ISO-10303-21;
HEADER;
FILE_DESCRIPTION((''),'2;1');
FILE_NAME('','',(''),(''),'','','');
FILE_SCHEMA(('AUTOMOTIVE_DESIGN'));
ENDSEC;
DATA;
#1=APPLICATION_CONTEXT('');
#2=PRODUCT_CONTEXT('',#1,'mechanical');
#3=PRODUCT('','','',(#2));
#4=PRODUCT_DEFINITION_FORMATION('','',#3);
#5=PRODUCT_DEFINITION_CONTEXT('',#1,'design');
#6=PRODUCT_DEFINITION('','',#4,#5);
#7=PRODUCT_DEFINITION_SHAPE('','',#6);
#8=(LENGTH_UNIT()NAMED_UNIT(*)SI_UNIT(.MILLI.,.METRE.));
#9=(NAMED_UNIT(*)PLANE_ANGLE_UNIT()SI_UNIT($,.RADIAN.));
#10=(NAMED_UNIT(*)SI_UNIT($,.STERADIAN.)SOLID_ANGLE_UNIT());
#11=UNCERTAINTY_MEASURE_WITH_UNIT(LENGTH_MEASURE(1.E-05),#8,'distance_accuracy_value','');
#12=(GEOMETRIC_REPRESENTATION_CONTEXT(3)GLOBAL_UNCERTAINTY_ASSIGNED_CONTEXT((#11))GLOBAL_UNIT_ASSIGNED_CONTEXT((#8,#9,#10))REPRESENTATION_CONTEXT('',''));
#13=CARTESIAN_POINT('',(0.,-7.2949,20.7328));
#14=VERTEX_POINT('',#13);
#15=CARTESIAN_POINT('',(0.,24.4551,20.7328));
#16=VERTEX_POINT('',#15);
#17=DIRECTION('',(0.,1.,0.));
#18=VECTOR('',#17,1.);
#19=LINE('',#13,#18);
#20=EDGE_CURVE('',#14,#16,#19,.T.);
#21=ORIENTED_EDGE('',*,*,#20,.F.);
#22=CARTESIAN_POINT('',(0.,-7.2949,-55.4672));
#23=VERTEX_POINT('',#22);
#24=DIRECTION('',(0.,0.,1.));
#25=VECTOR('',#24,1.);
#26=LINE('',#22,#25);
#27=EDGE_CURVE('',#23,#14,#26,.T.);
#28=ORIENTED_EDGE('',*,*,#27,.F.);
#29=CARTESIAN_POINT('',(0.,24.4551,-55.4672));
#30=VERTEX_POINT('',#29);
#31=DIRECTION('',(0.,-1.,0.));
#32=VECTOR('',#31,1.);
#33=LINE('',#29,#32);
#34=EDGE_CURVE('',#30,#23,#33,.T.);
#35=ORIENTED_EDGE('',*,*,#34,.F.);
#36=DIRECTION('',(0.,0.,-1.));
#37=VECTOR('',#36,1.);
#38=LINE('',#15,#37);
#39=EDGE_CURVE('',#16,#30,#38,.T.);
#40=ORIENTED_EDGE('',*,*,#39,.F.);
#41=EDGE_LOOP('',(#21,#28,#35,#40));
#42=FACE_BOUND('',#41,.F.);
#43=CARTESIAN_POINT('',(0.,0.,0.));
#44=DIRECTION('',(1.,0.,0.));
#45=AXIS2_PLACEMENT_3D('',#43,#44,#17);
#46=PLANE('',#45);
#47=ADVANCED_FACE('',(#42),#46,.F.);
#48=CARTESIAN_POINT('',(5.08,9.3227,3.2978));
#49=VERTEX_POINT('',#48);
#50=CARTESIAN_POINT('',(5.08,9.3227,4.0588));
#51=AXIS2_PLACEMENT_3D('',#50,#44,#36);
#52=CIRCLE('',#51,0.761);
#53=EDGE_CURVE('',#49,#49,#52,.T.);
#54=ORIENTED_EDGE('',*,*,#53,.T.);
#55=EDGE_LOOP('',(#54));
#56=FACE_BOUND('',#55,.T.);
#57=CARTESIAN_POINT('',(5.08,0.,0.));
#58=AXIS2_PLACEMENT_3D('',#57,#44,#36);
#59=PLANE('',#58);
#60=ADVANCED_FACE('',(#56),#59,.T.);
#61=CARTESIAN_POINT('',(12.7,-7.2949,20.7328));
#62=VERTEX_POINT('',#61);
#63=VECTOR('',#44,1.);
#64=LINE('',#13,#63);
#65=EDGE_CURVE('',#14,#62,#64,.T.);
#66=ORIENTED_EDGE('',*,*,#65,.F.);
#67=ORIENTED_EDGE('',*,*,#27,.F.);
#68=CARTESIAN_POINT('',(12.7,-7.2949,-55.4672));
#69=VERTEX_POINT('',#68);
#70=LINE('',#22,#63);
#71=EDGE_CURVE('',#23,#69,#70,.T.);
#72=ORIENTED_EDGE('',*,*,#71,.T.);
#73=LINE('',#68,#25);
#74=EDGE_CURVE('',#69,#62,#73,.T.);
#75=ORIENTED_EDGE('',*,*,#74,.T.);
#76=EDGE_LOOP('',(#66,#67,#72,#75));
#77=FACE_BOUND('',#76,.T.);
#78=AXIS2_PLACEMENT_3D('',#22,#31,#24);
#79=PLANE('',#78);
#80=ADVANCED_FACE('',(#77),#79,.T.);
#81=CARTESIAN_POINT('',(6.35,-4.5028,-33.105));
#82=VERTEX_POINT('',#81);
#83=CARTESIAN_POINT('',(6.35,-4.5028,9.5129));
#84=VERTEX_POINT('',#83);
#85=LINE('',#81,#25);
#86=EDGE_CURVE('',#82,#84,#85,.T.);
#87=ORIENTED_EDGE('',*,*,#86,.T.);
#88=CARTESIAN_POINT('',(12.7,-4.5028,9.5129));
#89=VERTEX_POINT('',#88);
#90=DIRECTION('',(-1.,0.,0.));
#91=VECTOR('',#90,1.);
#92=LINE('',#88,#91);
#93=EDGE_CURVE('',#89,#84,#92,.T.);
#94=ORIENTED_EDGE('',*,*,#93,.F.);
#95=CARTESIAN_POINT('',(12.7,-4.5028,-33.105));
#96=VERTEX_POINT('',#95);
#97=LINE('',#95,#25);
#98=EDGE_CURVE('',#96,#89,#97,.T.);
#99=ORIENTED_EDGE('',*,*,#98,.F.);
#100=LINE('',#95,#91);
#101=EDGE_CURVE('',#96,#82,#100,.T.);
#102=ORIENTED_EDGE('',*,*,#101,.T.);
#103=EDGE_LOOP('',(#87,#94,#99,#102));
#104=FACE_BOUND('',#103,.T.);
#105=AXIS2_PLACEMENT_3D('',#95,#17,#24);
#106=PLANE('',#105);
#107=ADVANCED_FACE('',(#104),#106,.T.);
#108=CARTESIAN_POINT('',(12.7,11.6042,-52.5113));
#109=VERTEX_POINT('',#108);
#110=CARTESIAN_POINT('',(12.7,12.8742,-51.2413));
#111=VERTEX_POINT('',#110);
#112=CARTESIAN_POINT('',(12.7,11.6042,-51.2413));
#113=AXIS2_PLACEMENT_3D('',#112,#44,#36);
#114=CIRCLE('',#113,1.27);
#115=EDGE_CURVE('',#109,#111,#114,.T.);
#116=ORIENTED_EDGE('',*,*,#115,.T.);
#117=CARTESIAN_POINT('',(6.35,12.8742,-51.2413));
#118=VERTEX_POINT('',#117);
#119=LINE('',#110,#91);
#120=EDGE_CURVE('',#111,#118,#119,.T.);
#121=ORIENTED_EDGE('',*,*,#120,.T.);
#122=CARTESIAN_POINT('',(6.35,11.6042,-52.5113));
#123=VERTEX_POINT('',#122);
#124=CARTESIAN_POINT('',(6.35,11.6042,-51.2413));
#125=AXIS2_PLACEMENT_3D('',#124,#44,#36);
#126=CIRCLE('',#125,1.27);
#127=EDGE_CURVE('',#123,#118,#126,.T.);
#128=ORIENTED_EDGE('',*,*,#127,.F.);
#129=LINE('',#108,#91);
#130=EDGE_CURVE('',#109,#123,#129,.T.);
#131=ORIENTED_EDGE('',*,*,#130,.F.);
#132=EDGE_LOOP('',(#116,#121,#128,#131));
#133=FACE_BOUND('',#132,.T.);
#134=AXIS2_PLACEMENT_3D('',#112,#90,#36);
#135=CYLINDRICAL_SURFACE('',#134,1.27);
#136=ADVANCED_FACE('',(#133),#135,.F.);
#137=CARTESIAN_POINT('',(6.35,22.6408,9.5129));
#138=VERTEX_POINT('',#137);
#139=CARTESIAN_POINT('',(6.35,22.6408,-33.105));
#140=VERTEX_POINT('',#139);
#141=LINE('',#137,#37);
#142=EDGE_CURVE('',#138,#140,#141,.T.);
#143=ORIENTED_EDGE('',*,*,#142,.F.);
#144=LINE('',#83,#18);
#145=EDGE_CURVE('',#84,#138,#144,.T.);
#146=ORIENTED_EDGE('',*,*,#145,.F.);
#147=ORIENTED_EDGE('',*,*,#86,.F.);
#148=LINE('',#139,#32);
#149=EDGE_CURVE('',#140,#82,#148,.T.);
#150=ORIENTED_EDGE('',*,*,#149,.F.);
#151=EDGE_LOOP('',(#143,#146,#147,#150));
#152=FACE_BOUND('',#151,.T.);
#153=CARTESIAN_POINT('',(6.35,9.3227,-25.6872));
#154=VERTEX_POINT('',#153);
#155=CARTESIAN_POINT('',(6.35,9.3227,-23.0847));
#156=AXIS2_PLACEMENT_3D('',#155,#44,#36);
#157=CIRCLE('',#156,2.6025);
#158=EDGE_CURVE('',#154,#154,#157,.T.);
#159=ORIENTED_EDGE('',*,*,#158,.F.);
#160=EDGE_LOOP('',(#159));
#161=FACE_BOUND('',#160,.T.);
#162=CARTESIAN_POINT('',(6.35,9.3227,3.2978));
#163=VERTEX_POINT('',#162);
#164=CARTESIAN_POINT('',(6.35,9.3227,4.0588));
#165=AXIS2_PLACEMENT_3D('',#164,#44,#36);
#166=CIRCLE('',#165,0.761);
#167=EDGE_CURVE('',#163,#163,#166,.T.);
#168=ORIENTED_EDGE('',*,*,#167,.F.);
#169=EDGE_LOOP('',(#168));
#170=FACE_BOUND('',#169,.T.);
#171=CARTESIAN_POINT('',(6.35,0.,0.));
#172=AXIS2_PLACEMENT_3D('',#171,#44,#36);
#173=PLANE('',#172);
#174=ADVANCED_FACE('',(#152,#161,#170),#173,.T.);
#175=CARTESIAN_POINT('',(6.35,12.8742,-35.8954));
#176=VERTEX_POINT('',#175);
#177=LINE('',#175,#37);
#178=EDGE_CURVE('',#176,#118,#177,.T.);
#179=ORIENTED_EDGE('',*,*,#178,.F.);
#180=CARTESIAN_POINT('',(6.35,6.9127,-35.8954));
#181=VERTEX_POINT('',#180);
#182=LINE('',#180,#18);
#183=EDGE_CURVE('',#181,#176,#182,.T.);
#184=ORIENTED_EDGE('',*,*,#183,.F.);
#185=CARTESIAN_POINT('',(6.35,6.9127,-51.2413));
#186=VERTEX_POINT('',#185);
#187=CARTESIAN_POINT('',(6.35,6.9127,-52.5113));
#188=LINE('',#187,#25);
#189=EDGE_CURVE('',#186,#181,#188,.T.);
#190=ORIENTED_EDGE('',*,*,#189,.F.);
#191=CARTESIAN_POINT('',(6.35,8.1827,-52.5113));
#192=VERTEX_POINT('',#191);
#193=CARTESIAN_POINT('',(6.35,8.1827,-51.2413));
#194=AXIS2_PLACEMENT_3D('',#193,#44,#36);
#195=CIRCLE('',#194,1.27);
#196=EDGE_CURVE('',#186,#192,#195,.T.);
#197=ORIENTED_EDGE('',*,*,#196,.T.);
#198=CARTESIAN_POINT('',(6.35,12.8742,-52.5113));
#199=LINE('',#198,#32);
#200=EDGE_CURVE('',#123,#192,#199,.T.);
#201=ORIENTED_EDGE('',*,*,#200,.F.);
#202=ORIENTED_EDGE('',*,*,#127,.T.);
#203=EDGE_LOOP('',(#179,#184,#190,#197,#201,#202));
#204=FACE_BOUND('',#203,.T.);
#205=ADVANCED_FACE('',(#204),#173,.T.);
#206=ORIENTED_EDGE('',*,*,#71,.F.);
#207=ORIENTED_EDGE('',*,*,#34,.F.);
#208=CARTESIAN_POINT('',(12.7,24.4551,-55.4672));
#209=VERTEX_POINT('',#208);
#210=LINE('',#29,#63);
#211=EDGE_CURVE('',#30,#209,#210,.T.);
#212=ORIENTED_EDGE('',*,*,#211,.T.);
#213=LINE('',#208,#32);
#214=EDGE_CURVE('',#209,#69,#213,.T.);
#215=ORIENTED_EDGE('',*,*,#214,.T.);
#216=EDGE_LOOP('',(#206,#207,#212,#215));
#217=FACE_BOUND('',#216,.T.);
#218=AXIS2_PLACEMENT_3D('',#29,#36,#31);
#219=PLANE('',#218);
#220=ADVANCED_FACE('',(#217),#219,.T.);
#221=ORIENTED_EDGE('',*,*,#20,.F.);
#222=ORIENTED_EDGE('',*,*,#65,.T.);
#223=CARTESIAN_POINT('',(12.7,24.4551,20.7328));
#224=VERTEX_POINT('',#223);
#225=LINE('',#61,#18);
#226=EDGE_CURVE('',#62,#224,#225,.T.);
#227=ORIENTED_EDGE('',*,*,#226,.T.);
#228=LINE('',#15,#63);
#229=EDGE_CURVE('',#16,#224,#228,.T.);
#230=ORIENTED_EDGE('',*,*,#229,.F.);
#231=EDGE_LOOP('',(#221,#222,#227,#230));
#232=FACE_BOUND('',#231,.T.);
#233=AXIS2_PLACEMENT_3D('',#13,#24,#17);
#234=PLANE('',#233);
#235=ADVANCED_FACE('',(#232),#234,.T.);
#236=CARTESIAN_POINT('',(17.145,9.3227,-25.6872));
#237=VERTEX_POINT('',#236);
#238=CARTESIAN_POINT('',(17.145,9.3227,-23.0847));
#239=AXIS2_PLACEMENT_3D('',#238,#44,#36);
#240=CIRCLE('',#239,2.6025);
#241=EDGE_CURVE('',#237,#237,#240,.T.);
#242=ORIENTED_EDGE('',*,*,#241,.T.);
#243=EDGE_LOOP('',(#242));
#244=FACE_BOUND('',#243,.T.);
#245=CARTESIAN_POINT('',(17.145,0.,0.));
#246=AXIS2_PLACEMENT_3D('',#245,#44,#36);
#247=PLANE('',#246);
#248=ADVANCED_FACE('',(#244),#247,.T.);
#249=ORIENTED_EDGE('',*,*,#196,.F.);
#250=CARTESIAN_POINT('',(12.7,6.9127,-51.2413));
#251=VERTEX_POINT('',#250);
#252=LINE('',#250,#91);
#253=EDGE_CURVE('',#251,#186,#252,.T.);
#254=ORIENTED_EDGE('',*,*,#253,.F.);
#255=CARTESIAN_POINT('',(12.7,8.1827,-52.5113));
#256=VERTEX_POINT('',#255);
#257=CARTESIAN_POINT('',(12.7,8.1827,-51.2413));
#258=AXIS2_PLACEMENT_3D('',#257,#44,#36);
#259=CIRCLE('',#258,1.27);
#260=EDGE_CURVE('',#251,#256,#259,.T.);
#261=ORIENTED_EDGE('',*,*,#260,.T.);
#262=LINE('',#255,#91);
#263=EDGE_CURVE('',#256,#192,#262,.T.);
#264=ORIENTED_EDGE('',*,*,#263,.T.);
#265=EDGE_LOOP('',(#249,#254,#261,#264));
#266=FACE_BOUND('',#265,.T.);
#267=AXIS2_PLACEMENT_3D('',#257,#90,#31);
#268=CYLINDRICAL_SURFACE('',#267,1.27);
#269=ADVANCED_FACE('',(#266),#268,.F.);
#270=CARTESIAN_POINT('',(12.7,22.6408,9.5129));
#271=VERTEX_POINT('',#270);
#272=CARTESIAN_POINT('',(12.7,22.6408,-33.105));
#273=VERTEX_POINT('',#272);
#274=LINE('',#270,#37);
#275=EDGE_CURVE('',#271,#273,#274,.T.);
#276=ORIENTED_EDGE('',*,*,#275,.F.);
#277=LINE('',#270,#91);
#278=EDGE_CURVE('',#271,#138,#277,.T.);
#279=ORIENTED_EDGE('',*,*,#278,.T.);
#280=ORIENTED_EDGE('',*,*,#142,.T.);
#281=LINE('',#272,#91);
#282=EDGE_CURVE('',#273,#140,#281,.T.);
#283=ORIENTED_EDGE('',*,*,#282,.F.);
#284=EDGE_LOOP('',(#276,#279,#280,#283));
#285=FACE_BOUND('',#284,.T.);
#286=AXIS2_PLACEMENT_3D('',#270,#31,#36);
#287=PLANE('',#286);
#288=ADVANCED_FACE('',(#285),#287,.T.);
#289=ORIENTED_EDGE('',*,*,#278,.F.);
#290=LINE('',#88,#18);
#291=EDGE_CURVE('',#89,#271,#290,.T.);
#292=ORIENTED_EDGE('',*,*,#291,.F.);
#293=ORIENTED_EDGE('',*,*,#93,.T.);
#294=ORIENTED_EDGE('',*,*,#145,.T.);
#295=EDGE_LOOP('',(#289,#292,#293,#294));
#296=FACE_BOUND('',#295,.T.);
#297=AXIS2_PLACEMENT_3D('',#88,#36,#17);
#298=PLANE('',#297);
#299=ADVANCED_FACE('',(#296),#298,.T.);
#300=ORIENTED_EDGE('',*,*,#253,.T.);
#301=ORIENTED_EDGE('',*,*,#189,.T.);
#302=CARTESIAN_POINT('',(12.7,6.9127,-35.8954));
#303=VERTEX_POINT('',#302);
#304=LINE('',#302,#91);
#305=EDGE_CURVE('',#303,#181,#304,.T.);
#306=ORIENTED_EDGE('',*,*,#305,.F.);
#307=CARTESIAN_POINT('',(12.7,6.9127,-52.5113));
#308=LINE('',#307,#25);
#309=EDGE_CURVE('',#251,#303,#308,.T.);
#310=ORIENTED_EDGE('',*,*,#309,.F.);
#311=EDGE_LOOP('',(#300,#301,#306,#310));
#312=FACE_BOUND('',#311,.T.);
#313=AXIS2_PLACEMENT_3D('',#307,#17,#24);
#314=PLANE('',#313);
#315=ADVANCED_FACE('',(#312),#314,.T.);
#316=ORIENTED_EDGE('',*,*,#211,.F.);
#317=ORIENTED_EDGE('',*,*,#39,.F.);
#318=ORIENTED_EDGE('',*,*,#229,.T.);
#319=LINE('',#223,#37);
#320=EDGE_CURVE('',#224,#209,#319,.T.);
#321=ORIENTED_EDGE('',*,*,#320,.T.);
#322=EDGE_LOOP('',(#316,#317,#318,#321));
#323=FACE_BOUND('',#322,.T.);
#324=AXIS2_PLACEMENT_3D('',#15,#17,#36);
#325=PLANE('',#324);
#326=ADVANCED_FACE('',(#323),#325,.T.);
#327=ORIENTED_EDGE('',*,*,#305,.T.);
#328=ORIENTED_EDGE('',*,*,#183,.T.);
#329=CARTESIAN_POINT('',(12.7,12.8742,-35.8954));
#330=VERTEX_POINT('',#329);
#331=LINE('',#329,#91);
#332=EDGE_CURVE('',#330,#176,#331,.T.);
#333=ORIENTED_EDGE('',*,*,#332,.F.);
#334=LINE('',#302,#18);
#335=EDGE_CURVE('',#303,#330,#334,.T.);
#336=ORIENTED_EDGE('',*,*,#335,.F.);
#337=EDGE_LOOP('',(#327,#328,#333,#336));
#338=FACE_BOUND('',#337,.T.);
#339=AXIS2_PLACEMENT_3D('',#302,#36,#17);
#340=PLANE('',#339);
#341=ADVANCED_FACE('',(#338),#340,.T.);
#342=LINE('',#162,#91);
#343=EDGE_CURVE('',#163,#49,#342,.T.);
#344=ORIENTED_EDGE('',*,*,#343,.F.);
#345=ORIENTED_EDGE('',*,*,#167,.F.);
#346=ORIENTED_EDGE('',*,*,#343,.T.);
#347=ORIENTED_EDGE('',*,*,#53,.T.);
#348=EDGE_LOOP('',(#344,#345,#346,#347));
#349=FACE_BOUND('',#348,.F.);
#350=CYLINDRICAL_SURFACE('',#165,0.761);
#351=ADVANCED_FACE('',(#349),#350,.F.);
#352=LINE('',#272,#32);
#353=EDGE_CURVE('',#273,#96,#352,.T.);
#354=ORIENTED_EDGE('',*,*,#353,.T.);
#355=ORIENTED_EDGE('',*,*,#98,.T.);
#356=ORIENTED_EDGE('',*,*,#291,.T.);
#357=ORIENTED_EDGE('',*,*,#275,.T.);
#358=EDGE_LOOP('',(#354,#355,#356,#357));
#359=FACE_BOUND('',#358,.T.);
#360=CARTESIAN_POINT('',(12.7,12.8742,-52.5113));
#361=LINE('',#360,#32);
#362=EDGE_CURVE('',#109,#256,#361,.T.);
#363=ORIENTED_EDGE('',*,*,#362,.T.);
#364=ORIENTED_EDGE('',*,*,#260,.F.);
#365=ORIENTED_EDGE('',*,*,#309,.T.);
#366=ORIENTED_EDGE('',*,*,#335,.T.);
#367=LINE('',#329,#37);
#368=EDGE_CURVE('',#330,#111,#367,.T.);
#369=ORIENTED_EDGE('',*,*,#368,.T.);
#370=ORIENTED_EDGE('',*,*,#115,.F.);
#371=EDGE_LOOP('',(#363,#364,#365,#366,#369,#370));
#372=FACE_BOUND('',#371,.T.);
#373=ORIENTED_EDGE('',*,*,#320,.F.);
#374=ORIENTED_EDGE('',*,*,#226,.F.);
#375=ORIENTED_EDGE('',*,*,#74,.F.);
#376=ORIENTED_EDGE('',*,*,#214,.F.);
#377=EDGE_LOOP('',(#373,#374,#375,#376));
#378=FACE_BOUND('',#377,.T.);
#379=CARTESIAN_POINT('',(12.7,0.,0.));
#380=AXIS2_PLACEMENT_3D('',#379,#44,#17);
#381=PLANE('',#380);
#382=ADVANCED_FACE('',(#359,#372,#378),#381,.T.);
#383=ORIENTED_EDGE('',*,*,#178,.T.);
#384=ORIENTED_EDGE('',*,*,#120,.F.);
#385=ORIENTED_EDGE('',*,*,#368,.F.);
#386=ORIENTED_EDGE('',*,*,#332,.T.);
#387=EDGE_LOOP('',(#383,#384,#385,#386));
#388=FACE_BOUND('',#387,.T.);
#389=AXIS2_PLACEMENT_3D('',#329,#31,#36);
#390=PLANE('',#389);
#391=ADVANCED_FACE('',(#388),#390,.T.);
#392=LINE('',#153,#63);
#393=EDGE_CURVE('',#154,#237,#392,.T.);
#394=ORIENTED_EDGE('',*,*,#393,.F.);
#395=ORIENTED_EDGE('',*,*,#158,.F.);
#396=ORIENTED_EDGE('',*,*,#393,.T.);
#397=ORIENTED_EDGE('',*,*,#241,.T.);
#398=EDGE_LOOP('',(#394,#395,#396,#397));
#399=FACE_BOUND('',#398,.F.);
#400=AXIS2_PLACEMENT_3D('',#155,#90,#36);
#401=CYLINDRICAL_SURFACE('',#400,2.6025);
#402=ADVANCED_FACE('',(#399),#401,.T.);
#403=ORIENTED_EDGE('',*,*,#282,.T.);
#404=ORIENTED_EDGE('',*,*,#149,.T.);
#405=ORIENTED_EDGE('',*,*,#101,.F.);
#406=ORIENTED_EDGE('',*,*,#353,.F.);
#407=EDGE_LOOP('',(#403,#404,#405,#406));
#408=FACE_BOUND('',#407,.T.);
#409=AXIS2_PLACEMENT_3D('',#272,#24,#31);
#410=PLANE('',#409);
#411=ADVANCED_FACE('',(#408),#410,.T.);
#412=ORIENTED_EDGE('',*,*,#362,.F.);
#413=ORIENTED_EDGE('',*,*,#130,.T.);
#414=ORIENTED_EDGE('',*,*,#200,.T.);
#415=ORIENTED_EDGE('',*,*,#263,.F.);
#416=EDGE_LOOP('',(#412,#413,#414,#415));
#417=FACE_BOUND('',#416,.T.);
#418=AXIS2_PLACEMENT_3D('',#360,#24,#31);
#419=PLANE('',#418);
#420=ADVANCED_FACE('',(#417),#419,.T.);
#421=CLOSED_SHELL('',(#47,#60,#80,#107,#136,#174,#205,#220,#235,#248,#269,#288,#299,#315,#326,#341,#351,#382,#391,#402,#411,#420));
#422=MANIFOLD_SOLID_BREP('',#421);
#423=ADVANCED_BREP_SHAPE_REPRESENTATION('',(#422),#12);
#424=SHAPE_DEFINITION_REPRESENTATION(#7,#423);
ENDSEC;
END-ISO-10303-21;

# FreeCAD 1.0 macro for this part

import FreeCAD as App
import Part
import Sketcher
from FreeCAD import Vector
Q = App.Units.Quantity


def edges_at(feature, points):
    """Names of the edges that pass closest to the given points."""
    edges = feature.Shape.Edges
    near = lambda p: min(range(len(edges)), key=lambda i: edges[i].distToShape(Part.Vertex(*p))[0])
    return sorted({f"Edge{near(p) + 1}" for p in points})


def add_polygon(sketch, points):
    """Adds a closed chain of lines whose ends are joined by coincident constraints."""
    first, n = sketch.GeometryCount, len(points)
    for a, b in zip(points, points[1:] + points[:1]):
        sketch.addGeometry(Part.LineSegment(App.Vector(*a, 0), App.Vector(*b, 0)), False)
    for i in range(n):
        sketch.addConstraint(Sketcher.Constraint("Coincident", first + i, 2, first + (i + 1) % n, 1))

doc = App.newDocument("Part")
body = doc.addObject("PartDesign::Body", "Body")

# Sketch on YZ plane
sketch1 = doc.addObject("Sketcher::SketchObject", "Sketch")
body.addObject(sketch1)
sketch1.AttachmentSupport = (doc.YZ_Plane, [""])
sketch1.MapMode = "FlatFace"
add_polygon(sketch1, [(24, 21), (-7, 21), (-7, -55), (24, -55)])  # lines 0-3
sketch1.addConstraint([
    Sketcher.Constraint("Horizontal", 0),
    Sketcher.Constraint("Vertical", 1),
    Sketcher.Constraint("Horizontal", 2),
    Sketcher.Constraint("Vertical", 3),
    Sketcher.Constraint("DistanceY", 1, 2, 1, 1, Q("3 in")),
    Sketcher.Constraint("DistanceX", 0, 2, 0, 1, Q("1.25 in")),
    Sketcher.Constraint("DistanceX", 0, 2, -1, 1, Q("0.2872 in")),
    Sketcher.Constraint("DistanceY", -1, 1, 0, 2, 20.7328),
])
pad1 = doc.addObject("PartDesign::Pad", "Pad")
body.addObject(pad1)
pad1.Profile = sketch1
pad1.Length = Q("0.5 in")

# Sketch on YZ plane
sketch2 = doc.addObject("Sketcher::SketchObject", "Sketch001")
body.addObject(sketch2)
sketch2.AttachmentSupport = (doc.YZ_Plane, [""])
sketch2.MapMode = "FlatFace"
sketch2.AttachmentOffset = App.Placement(Vector(0, 0, 0.5 * 25.4), App.Rotation())
add_polygon(sketch2, [(23, -33), (23, 10), (-5, 10), (-5, -33)])  # lines 0-3
add_polygon(sketch2, [(13, -53), (13, -36), (7, -36), (7, -53)])  # lines 4-7
sketch2.addConstraint([
    Sketcher.Constraint("Vertical", 0),
    Sketcher.Constraint("Horizontal", 1),
    Sketcher.Constraint("Vertical", 2),
    Sketcher.Constraint("Horizontal", 3),
    Sketcher.Constraint("Vertical", 4),
    Sketcher.Constraint("Horizontal", 5),
    Sketcher.Constraint("Vertical", 6),
    Sketcher.Constraint("Horizontal", 7),
    Sketcher.Constraint("DistanceX", 5, 2, 5, 1, Q("0.2347 in")),
    Sketcher.Constraint("DistanceX", 1, 2, 1, 1, 27.1436),
    Sketcher.Constraint("DistanceY", 0, 1, 0, 2, 42.618),
    Sketcher.Constraint("DistanceY", 4, 1, 4, 2, 16.616),
    Sketcher.Constraint("DistanceY", 4, 2, -1, 1, Q("1.4132 in")),
    Sketcher.Constraint("DistanceX", 4, 2, 3, 2, Q("0.3845 in")),
    Sketcher.Constraint("DistanceY", 6, 2, 1, 2, Q("2.4419 in")),
    Sketcher.Constraint("DistanceX", -1, 1, 0, 2, 22.6408),
])
pocket1 = doc.addObject("PartDesign::Pocket", "Pocket")
body.addObject(pocket1)
pocket1.Profile = sketch2
pocket1.Length = Q("0.25 in")
doc.recompute()

fillet = doc.addObject("PartDesign::Fillet", "Fillet")
body.addObject(fillet)
fillet.Base = (pocket1, edges_at(pocket1, [(9.525, 12.874, -52.511), (9.525, 6.913, -52.511)]))
fillet.Radius = Q("0.05 in")

# Sketch on YZ plane
sketch3 = doc.addObject("Sketcher::SketchObject", "Sketch002")
body.addObject(sketch3)
sketch3.AttachmentSupport = (doc.YZ_Plane, [""])
sketch3.MapMode = "FlatFace"
sketch3.AttachmentOffset = App.Placement(Vector(0, 0, 0.25 * 25.4), App.Rotation())
sketch3.addGeometry(Part.Circle(Vector(9.3, 4.1, 0), Vector(0, 0, 1), 0.8), False)
sketch3.addConstraint([
    Sketcher.Constraint("Diameter", 0, 1.522),
    Sketcher.Constraint("DistanceY", -1, 1, 0, 3, Q("0.1598 in")),
    Sketcher.Constraint("DistanceX", -1, 1, 0, 3, 9.3227),
])
pocket2 = doc.addObject("PartDesign::Pocket", "Pocket001")
body.addObject(pocket2)
pocket2.Profile = sketch3
pocket2.Length = Q("0.05 in")

# Sketch on YZ plane
sketch4 = doc.addObject("Sketcher::SketchObject", "Sketch003")
body.addObject(sketch4)
sketch4.AttachmentSupport = (doc.YZ_Plane, [""])
sketch4.MapMode = "FlatFace"
sketch4.AttachmentOffset = App.Placement(Vector(0, 0, 0.25 * 25.4), App.Rotation())
sketch4.addGeometry(Part.Circle(Vector(9.3, -23.1, 0), Vector(0, 0, 1), 2.6), False)
sketch4.addConstraint([
    Sketcher.Constraint("Diameter", 0, 5.205),
    Sketcher.Constraint("DistanceX", -1, 1, 0, 3, 9.3227),
    Sketcher.Constraint("DistanceY", 0, 3, -1, 1, 23.0847),
])
pad2 = doc.addObject("PartDesign::Pad", "Pad001")
body.addObject(pad2)
pad2.Profile = sketch4
pad2.Length = Q("0.425 in")

doc.recompute()
